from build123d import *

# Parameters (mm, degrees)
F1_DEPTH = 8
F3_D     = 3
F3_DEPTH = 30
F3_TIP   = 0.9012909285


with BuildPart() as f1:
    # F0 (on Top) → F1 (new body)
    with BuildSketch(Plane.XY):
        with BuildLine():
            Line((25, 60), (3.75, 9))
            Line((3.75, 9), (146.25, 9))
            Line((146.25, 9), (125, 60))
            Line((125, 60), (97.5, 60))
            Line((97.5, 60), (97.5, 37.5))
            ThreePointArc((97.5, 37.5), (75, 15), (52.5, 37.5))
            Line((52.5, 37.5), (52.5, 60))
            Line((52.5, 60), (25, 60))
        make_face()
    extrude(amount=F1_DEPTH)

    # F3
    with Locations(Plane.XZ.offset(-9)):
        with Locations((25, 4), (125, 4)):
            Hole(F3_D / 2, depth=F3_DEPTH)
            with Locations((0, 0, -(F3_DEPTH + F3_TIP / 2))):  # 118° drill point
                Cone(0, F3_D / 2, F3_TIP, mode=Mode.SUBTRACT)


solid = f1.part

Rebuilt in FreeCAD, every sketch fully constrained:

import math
import FreeCAD as App
import Part
import Sketcher

V = App.Vector

doc = App.newDocument("Part")
body = doc.addObject("PartDesign::Body", "Body")

sketch1 = body.newObject("Sketcher::SketchObject", "Sketch")
sketch1.AttachmentSupport = (doc.getObject("XY_Plane"), [""])
sketch1.MapMode = "FlatFace"
sketch1.addGeometry([
    Part.LineSegment(V(25, 60, 0), V(3.75, 9, 0)),
    Part.LineSegment(V(3.75, 9, 0), V(146.25, 9, 0)),
    Part.LineSegment(V(146.25, 9, 0), V(125, 60, 0)),
    Part.LineSegment(V(125, 60, 0), V(97.5, 60, 0)),
    Part.LineSegment(V(97.5, 60, 0), V(97.5, 37.5, 0)),
    Part.ArcOfCircle(Part.Circle(V(75, 37.5, 0), V(0, 0, 1), 22.5), math.radians(180), math.radians(360)),
    Part.LineSegment(V(52.5, 37.5, 0), V(52.5, 60, 0)),
    Part.LineSegment(V(52.5, 60, 0), V(25, 60, 0)),
], False)
sketch1.addConstraint([
    Sketcher.Constraint("Coincident", 0, 2, 1, 1),
    Sketcher.Constraint("Coincident", 1, 2, 2, 1),
    Sketcher.Constraint("Coincident", 2, 2, 3, 1),
    Sketcher.Constraint("Coincident", 3, 2, 4, 1),
    Sketcher.Constraint("Tangent", 4, 2, 5, 2),
    Sketcher.Constraint("Tangent", 5, 1, 6, 1),
    Sketcher.Constraint("Coincident", 6, 2, 7, 1),
    Sketcher.Constraint("Coincident", 7, 2, 0, 1),
    Sketcher.Constraint("Horizontal", 1),
    Sketcher.Constraint("Horizontal", 3),
    Sketcher.Constraint("Vertical", 4),
    Sketcher.Constraint("Vertical", 6),
    Sketcher.Constraint("Horizontal", 7),
    Sketcher.Constraint("Horizontal", 3, 2, 6, 2),
    Sketcher.Constraint("Equal", 3, 7),
    Sketcher.Constraint("Equal", 0, 2),
    Sketcher.Constraint("Radius", 5, 22.5),
    Sketcher.Constraint("DistanceX", 1, 1, 1, 2, 142.5),
    Sketcher.Constraint("DistanceX", 3, 2, 3, 1, 27.5),
    Sketcher.Constraint("DistanceY", 4, 2, 4, 1, 22.5),
    Sketcher.Constraint("DistanceX", -1, 1, 5, 3, 75.0),
    Sketcher.Constraint("DistanceY", -1, 1, 0, 2, 9.0),
    Sketcher.Constraint("DistanceY", -1, 1, 2, 2, 60.0),
])
pad1 = body.newObject("PartDesign::Pad", "Pad")
pad1.Profile = sketch1
pad1.Length = 8

sketch2 = body.newObject("Sketcher::SketchObject", "Sketch001")
sketch2.AttachmentSupport = (doc.getObject("XZ_Plane"), [""])
sketch2.MapMode = "FlatFace"
sketch2.AttachmentOffset = App.Placement(V(0, 0, -9), App.Rotation())
sketch2.addGeometry([
    Part.Circle(V(25, 4, 0), V(0, 0, 1), 1.5),
    Part.Circle(V(125, 4, 0), V(0, 0, 1), 1.5),
], False)
sketch2.addConstraint([
    Sketcher.Constraint("Equal", 0, 1),
    Sketcher.Constraint("Horizontal", 0, 3, 1, 3),
    Sketcher.Constraint("Diameter", 0, 3.0),
    Sketcher.Constraint("DistanceX", -1, 1, 0, 3, 25.0),
    Sketcher.Constraint("DistanceY", -1, 1, 0, 3, 4.0),
    Sketcher.Constraint("DistanceX", -1, 1, 1, 3, 125.0),
])
doc.recompute()
hole = body.newObject("PartDesign::Hole", "Hole")
hole.Profile = sketch2
hole.ThreadType = "None"
hole.Diameter = 3
hole.DepthType = "Dimension"
hole.Depth = 30
hole.DrillPoint = "Angled"
hole.DrillPointAngle = 118

doc.recompute()
